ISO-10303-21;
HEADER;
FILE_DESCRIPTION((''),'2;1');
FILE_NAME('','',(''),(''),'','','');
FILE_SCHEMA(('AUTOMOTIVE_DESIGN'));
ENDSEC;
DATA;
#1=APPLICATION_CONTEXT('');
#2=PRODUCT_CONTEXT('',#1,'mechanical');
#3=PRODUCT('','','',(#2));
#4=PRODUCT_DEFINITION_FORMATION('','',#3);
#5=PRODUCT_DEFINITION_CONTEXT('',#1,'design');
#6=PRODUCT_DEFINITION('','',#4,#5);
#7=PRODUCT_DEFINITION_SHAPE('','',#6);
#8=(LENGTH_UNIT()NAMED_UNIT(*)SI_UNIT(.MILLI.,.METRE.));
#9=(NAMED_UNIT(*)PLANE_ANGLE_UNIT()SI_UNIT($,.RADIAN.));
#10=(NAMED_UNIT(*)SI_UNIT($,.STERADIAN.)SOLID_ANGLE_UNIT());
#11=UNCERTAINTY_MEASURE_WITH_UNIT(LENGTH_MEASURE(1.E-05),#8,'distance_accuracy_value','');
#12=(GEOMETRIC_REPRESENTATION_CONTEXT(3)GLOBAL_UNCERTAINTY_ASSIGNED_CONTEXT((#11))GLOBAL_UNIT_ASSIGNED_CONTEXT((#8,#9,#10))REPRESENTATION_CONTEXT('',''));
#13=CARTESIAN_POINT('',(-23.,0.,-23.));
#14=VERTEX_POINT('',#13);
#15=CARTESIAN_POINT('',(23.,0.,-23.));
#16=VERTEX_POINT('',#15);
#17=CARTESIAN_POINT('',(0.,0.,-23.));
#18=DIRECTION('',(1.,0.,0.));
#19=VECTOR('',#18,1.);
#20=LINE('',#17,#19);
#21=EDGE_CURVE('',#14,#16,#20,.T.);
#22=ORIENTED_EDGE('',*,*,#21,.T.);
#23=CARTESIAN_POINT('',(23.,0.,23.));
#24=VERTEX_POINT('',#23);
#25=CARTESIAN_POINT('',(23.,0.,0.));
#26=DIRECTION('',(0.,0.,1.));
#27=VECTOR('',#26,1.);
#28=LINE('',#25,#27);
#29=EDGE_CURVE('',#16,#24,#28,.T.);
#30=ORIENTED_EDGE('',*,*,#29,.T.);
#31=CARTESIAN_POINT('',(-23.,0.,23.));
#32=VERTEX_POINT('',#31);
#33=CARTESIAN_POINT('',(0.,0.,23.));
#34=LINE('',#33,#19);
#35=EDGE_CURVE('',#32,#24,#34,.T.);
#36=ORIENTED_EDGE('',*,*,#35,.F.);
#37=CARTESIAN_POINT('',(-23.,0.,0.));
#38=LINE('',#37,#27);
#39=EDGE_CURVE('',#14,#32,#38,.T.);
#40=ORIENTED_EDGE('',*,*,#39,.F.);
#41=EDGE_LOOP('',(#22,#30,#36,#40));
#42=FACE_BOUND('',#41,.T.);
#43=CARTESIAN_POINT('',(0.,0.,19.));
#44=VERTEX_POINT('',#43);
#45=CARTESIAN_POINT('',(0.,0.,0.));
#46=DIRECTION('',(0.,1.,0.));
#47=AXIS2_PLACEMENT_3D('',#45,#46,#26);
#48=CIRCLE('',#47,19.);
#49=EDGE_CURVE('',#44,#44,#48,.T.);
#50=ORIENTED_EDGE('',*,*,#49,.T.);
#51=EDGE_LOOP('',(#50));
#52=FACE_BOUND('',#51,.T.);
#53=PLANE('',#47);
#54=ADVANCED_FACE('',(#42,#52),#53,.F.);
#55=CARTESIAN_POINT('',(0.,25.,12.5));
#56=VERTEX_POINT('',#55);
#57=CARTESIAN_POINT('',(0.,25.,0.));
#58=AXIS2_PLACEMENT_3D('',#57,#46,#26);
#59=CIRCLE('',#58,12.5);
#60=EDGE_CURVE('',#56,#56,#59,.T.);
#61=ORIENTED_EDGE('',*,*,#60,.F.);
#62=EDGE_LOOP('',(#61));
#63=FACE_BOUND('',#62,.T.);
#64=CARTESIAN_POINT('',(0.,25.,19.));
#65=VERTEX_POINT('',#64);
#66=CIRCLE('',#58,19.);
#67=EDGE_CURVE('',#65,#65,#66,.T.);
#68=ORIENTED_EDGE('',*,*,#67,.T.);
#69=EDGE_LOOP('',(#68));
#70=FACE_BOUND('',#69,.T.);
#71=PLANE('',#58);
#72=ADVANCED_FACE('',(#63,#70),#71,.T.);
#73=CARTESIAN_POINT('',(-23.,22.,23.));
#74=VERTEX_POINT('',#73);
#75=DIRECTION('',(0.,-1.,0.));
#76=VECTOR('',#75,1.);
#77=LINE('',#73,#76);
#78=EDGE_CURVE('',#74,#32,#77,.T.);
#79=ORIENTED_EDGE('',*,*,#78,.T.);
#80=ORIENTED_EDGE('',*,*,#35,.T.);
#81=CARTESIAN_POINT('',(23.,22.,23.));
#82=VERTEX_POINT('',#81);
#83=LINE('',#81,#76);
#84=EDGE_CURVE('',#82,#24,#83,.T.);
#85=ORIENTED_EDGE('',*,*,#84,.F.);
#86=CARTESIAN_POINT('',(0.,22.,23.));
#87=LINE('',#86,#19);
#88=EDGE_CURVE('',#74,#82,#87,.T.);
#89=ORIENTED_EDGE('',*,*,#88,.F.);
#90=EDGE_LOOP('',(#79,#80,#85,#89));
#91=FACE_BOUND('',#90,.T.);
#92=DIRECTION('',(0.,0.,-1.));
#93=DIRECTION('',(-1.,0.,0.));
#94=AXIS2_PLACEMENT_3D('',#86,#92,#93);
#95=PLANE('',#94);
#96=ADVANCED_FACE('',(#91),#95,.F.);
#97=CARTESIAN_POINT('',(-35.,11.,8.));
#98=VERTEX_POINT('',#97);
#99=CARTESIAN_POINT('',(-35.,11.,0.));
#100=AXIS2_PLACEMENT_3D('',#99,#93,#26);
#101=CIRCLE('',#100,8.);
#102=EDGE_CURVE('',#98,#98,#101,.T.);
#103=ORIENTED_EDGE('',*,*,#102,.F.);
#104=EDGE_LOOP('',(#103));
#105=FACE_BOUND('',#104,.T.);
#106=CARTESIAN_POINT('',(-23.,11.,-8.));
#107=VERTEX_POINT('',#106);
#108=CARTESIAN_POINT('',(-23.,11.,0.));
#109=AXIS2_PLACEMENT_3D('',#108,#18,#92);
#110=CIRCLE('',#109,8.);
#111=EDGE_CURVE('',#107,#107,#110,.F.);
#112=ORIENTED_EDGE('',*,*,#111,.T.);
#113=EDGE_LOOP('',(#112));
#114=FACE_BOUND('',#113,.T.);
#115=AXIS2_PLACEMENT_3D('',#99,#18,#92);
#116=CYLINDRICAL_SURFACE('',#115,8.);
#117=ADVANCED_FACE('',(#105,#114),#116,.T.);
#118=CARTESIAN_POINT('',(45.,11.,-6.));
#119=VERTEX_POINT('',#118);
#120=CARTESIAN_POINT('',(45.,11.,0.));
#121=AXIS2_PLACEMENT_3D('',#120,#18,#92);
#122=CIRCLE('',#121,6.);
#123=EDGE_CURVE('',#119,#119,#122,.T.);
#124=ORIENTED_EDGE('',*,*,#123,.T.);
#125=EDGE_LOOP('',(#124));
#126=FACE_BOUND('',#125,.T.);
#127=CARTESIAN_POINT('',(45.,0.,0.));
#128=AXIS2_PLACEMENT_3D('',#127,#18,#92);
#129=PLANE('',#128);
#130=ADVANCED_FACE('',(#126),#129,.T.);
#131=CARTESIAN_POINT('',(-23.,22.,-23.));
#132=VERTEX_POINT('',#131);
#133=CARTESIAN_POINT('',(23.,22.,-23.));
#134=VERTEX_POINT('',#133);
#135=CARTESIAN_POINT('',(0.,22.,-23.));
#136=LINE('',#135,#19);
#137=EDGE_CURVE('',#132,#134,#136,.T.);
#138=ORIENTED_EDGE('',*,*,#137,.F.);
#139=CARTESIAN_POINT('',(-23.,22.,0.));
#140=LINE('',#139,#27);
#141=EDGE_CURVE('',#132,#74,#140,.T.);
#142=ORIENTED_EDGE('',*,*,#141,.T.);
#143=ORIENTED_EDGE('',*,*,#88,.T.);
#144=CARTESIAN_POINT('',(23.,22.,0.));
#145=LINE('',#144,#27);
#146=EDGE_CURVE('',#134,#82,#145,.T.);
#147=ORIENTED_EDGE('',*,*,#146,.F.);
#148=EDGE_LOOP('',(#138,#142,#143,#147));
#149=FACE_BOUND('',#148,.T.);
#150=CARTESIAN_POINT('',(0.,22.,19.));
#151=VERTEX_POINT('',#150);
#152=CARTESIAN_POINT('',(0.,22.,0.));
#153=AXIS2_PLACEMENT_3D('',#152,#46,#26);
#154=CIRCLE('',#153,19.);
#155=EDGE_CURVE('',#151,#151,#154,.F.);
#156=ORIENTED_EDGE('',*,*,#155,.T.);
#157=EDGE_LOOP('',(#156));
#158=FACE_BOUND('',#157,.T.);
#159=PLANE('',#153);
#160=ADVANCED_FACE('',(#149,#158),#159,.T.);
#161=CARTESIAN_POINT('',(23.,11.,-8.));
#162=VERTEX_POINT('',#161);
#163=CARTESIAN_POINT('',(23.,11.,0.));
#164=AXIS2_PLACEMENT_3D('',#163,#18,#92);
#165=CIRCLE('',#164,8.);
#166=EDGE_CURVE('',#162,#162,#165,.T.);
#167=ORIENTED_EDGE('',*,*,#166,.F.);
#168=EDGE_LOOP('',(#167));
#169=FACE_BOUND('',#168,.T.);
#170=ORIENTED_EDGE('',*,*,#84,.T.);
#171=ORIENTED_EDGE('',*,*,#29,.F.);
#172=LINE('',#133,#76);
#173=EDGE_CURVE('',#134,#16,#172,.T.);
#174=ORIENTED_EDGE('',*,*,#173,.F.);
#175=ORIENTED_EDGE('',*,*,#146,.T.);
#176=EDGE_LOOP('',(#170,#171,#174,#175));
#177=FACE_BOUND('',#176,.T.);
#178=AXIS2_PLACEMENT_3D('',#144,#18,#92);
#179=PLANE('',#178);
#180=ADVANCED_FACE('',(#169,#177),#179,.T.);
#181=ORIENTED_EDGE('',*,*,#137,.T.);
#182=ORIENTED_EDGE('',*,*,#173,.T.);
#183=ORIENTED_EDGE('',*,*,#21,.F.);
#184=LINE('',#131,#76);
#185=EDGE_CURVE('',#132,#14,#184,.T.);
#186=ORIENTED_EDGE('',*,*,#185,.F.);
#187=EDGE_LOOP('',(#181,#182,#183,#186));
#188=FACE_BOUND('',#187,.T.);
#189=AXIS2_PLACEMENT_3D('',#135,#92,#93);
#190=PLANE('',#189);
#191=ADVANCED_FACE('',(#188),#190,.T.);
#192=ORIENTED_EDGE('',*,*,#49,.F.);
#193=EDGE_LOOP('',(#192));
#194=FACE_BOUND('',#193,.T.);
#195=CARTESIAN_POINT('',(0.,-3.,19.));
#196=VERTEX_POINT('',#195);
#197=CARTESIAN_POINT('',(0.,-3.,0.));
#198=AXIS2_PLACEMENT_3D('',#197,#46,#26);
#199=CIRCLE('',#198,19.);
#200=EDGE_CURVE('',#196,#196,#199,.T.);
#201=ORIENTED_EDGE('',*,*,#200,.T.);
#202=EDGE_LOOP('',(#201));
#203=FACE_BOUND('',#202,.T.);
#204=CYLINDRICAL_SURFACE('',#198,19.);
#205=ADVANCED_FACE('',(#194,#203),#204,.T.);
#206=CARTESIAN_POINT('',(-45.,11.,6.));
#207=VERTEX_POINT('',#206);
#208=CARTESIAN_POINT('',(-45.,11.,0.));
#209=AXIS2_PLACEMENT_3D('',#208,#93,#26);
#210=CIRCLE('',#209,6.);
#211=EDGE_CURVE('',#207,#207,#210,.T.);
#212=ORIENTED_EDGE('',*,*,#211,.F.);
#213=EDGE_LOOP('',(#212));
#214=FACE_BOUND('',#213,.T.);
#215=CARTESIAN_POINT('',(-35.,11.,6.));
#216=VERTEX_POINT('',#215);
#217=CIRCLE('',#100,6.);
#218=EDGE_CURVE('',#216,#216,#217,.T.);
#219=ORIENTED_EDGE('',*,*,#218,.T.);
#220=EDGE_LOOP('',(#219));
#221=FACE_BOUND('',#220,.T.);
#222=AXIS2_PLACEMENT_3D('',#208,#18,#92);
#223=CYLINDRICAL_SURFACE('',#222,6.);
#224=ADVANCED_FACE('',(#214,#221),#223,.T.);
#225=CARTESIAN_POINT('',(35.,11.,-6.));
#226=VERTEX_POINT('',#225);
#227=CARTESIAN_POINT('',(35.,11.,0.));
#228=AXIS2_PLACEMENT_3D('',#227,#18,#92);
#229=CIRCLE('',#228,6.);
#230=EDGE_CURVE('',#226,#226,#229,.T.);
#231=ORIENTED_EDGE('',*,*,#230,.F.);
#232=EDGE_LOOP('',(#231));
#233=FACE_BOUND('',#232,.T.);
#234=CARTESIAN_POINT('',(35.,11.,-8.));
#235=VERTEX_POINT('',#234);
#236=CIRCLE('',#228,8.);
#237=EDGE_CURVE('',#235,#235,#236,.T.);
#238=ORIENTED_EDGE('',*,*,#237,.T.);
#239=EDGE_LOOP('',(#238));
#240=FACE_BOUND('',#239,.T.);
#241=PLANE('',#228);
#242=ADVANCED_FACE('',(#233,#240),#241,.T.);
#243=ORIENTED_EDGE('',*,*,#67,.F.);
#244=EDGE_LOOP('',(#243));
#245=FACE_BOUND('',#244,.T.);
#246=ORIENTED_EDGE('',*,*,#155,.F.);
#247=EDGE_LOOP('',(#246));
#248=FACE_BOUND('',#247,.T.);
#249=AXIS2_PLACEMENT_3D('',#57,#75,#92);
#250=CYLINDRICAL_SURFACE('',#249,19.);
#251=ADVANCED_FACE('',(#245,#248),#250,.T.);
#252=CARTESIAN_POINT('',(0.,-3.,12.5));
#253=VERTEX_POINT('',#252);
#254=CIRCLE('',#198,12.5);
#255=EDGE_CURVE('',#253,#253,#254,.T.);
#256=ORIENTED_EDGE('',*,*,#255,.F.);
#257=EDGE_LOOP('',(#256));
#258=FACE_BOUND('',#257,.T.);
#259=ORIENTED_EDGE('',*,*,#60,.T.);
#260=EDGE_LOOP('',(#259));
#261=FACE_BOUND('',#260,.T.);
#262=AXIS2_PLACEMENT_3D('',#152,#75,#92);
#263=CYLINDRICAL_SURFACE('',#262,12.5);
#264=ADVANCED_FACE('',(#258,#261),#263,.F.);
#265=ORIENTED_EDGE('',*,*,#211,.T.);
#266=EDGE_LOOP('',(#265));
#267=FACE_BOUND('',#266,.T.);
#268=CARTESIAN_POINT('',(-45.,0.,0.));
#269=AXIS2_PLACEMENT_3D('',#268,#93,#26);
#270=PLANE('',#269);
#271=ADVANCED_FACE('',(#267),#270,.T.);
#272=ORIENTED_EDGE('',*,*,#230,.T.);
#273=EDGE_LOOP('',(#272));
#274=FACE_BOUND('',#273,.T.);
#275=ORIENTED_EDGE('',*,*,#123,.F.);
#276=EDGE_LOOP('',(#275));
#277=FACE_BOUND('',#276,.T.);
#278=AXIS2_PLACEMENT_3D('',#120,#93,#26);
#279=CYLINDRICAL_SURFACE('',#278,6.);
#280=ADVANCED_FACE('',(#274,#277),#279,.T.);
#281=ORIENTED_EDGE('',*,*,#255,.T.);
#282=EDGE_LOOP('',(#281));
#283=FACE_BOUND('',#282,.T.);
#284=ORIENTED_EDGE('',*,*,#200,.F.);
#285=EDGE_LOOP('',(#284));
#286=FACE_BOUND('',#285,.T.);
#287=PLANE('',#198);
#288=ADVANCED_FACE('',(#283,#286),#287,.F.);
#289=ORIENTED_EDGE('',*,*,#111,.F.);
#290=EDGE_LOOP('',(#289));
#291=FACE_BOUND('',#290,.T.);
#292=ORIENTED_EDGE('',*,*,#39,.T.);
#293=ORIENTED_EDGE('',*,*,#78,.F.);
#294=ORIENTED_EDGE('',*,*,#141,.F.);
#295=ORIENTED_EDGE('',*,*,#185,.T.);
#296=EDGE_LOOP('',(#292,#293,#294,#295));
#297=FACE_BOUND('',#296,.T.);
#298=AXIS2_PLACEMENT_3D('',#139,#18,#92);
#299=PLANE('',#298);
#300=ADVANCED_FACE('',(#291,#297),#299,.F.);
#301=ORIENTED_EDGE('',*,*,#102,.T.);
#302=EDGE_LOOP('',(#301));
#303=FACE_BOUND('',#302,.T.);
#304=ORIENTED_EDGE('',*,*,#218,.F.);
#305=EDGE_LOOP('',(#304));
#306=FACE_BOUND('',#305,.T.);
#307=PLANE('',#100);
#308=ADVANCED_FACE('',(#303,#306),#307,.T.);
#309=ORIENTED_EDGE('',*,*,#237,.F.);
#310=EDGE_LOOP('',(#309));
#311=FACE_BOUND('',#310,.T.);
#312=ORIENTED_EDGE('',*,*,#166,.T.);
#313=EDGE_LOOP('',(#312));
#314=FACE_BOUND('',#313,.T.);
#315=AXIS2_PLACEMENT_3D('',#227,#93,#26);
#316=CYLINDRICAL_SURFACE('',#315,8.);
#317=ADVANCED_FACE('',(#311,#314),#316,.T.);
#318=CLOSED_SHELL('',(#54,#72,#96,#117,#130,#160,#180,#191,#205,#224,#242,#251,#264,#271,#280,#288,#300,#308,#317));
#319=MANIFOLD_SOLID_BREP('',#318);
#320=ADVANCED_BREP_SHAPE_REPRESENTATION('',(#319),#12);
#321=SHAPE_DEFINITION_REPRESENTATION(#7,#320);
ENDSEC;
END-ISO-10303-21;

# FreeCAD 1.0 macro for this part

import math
import FreeCAD as App
import Part
import Sketcher

V = App.Vector
Q = App.Units.Quantity


def add_polygon(sketch, points):
    """Adds a closed chain of lines whose ends are joined by coincident constraints."""
    first, n = sketch.GeometryCount, len(points)
    for a, b in zip(points, points[1:] + points[:1]):
        sketch.addGeometry(Part.LineSegment(App.Vector(*a, 0), App.Vector(*b, 0)), False)
    for i in range(n):
        sketch.addConstraint(Sketcher.Constraint("Coincident", first + i, 2, first + (i + 1) % n, 1))

doc = App.newDocument("Part")
body = doc.addObject("PartDesign::Body", "Body")

sketch1 = doc.addObject("Sketcher::SketchObject", "Sketch")
body.addObject(sketch1)
sketch1.AttachmentSupport = (doc.XZ_Plane, [""])
sketch1.MapMode = "FlatFace"
add_polygon(sketch1, [(-23, -23), (-23, 23), (23, 23), (23, -23)])
sketch1.addGeometry(Part.Circle(V(0, 0, 0), V(0, 0, 1), 12), False)
sketch1.addConstraint(Sketcher.Constraint("Vertical", 0))
sketch1.addConstraint(Sketcher.Constraint("Horizontal", 1))
sketch1.addConstraint(Sketcher.Constraint("Vertical", 2))
sketch1.addConstraint(Sketcher.Constraint("Horizontal", 3))
sketch1.addConstraint(Sketcher.Constraint("Coincident", 4, 3, -1, 1))
sketch1.addConstraint(Sketcher.Constraint("Symmetric", 0, 2, 2, 2, -1, 1))
sketch1.addConstraint(Sketcher.Constraint("Equal", 3, 0))
sketch1.addConstraint(Sketcher.Constraint("Diameter", 4, Q("25 mm")))
sketch1.addConstraint(Sketcher.Constraint("DistanceX", 1, 1, 1, 2, Q("46 mm")))
pad1 = doc.addObject("PartDesign::Pad", "Pad")
body.addObject(pad1)
pad1.Profile = sketch1
pad1.Length = 22
pad1.Reversed = True

sketch2 = doc.addObject("Sketcher::SketchObject", "Sketch001")
body.addObject(sketch2)
sketch2.AttachmentSupport = (doc.XZ_Plane, [""])
sketch2.MapMode = "FlatFace"
sketch2.addGeometry(Part.Circle(V(0, 0, 0), V(0, 0, 1), 19), False)
sketch2.addGeometry(Part.Circle(V(0, 0, 0), V(0, 0, 1), 12), False)
sketch2.addConstraint(Sketcher.Constraint("Coincident", 0, 3, -1, 1))
sketch2.addConstraint(Sketcher.Constraint("Coincident", 1, 3, -1, 1))
sketch2.addConstraint(Sketcher.Constraint("Diameter", 0, Q("38 mm")))
sketch2.addConstraint(Sketcher.Constraint("Diameter", 1, Q("25 mm")))
pad2 = doc.addObject("PartDesign::Pad", "Pad001")
body.addObject(pad2)
pad2.Profile = sketch2
pad2.Length = 25
pad2.Reversed = True

sketch3 = doc.addObject("Sketcher::SketchObject", "Sketch002")
body.addObject(sketch3)
sketch3.AttachmentSupport = (doc.XZ_Plane, [""])
sketch3.MapMode = "FlatFace"
sketch3.AttachmentOffset = App.Placement(V(0, 0, 3), App.Rotation())
sketch3.addGeometry(Part.Circle(V(0, 0, 0), V(0, 0, 1), 19), False)
sketch3.addGeometry(Part.Circle(V(0, 0, 0), V(0, 0, 1), 12), False)
sketch3.addConstraint(Sketcher.Constraint("Coincident", 0, 3, -1, 1))
sketch3.addConstraint(Sketcher.Constraint("Coincident", 1, 3, -1, 1))
sketch3.addConstraint(Sketcher.Constraint("Diameter", 0, Q("38 mm")))
sketch3.addConstraint(Sketcher.Constraint("Diameter", 1, Q("25 mm")))
pad3 = doc.addObject("PartDesign::Pad", "Pad002")
body.addObject(pad3)
pad3.Profile = sketch3
pad3.Length = 3
pad3.Reversed = True

sketch4 = doc.addObject("Sketcher::SketchObject", "Sketch003")
body.addObject(sketch4)
sketch4.AttachmentSupport = (doc.YZ_Plane, [""])
sketch4.MapMode = "FlatFace"
sketch4.AttachmentOffset = App.Placement(V(0, 0, -23), App.Rotation())
sketch4.addGeometry(Part.Circle(V(11, 0, 0), V(0, 0, 1), 8), False)
sketch4.addGeometry(Part.Circle(V(11, 0, 0), V(0, 0, 1), 6), False)
sketch4.addConstraint(Sketcher.Constraint("Coincident", 1, 3, 0, 3))
sketch4.addConstraint(Sketcher.Constraint("PointOnObject", 0, 3, -1))
sketch4.addConstraint(Sketcher.Constraint("Diameter", 0, Q("16 mm")))
sketch4.addConstraint(Sketcher.Constraint("Diameter", 1, Q("12 mm")))
sketch4.addConstraint(Sketcher.Constraint("DistanceX", -1, 1, 0, 3, Q("11 mm")))
pad4 = doc.addObject("PartDesign::Pad", "Pad003")
body.addObject(pad4)
pad4.Profile = sketch4
pad4.Length = 12
pad4.Reversed = True

sketch5 = doc.addObject("Sketcher::SketchObject", "Sketch004")
body.addObject(sketch5)
sketch5.AttachmentSupport = (doc.YZ_Plane, [""])
sketch5.MapMode = "FlatFace"
sketch5.AttachmentOffset = App.Placement(V(0, 0, -23), App.Rotation())
sketch5.addGeometry(Part.ArcOfCircle(Part.Circle(V(11, 0, 0), V(0, 0, 1), 6), math.radians(0), math.radians(90)), False)
sketch5.addGeometry(Part.ArcOfCircle(Part.Circle(V(11, 0, 0), V(0, 0, 1), 6), math.radians(180), math.radians(360)), False)
sketch5.addGeometry(Part.ArcOfCircle(Part.Circle(V(11, 0, 0), V(0, 0, 1), 6), math.radians(90), math.radians(180)), False)
sketch5.addConstraint(Sketcher.Constraint("Tangent", 0, 1, 1, 2))
sketch5.addConstraint(Sketcher.Constraint("Tangent", 1, 1, 2, 2))
sketch5.addConstraint(Sketcher.Constraint("Tangent", 2, 1, 0, 2))
sketch5.addConstraint(Sketcher.Constraint("PointOnObject", 0, 3, -1))
sketch5.addConstraint(Sketcher.Constraint("PointOnObject", 0, 1, -1))
sketch5.addConstraint(Sketcher.Constraint("PointOnObject", 1, 1, -1))
sketch5.addConstraint(Sketcher.Constraint("Vertical", 1, 3, 2, 1))
sketch5.addConstraint(Sketcher.Constraint("Radius", 0, Q("6 mm")))
sketch5.addConstraint(Sketcher.Constraint("DistanceX", -1, 1, 0, 3, Q("11 mm")))
pad5 = doc.addObject("PartDesign::Pad", "Pad004")
body.addObject(pad5)
pad5.Profile = sketch5
pad5.Length = 22
pad5.Reversed = True

sketch6 = doc.addObject("Sketcher::SketchObject", "Sketch005")
body.addObject(sketch6)
sketch6.AttachmentSupport = (doc.YZ_Plane, [""])
sketch6.MapMode = "FlatFace"
sketch6.AttachmentOffset = App.Placement(V(0, 0, 35), App.Rotation())
sketch6.addGeometry(Part.Circle(V(11, 0, 0), V(0, 0, 1), 8), False)
sketch6.addGeometry(Part.Circle(V(11, 0, 0), V(0, 0, 1), 6), False)
sketch6.addConstraint(Sketcher.Constraint("Coincident", 1, 3, 0, 3))
sketch6.addConstraint(Sketcher.Constraint("PointOnObject", 0, 3, -1))
sketch6.addConstraint(Sketcher.Constraint("Diameter", 0, Q("16 mm")))
sketch6.addConstraint(Sketcher.Constraint("Diameter", 1, Q("12 mm")))
sketch6.addConstraint(Sketcher.Constraint("DistanceX", -1, 1, 0, 3, Q("11 mm")))
pad6 = doc.addObject("PartDesign::Pad", "Pad005")
body.addObject(pad6)
pad6.Profile = sketch6
pad6.Length = 12
pad6.Reversed = True

sketch7 = doc.addObject("Sketcher::SketchObject", "Sketch006")
body.addObject(sketch7)
sketch7.AttachmentSupport = (doc.YZ_Plane, [""])
sketch7.MapMode = "FlatFace"
sketch7.AttachmentOffset = App.Placement(V(0, 0, 45), App.Rotation())
sketch7.addGeometry(Part.ArcOfCircle(Part.Circle(V(11, 0, 0), V(0, 0, 1), 6), math.radians(-90), math.radians(0)), False)
sketch7.addGeometry(Part.ArcOfCircle(Part.Circle(V(11, 0, 0), V(0, 0, 1), 6), math.radians(0), math.radians(180)), False)
sketch7.addGeometry(Part.ArcOfCircle(Part.Circle(V(11, 0, 0), V(0, 0, 1), 6), math.radians(180), math.radians(270)), False)
sketch7.addConstraint(Sketcher.Constraint("Tangent", 0, 2, 1, 1))
sketch7.addConstraint(Sketcher.Constraint("Tangent", 1, 2, 2, 1))
sketch7.addConstraint(Sketcher.Constraint("Tangent", 2, 2, 0, 1))
sketch7.addConstraint(Sketcher.Constraint("PointOnObject", 0, 3, -1))
sketch7.addConstraint(Sketcher.Constraint("PointOnObject", 0, 2, -1))
sketch7.addConstraint(Sketcher.Constraint("PointOnObject", 1, 2, -1))
sketch7.addConstraint(Sketcher.Constraint("Vertical", 1, 3, 2, 2))
sketch7.addConstraint(Sketcher.Constraint("Radius", 0, Q("6 mm")))
sketch7.addConstraint(Sketcher.Constraint("DistanceX", -1, 1, 0, 3, Q("11 mm")))
pad7 = doc.addObject("PartDesign::Pad", "Pad006")
body.addObject(pad7)
pad7.Profile = sketch7
pad7.Length = 22
pad7.Reversed = True

doc.recompute()
